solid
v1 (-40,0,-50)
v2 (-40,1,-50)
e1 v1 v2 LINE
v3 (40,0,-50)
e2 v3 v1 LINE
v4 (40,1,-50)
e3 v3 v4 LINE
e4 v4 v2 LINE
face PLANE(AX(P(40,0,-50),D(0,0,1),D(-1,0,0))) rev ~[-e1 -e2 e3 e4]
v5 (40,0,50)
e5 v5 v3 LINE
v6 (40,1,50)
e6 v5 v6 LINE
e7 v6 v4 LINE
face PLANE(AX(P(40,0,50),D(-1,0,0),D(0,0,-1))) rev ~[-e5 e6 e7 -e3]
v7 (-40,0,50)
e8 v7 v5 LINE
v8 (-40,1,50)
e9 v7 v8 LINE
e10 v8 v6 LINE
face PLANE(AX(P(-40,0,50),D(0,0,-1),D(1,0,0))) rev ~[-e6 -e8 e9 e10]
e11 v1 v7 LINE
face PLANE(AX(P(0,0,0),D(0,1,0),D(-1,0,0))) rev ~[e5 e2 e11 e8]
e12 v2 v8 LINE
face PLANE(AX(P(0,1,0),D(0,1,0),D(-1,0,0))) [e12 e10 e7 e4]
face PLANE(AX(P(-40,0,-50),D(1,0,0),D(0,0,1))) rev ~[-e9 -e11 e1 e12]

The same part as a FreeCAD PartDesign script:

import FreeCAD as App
import Part
import Sketcher

V = App.Vector


def add_polygon(sketch, points):
    """Adds a closed chain of lines whose ends are joined by coincident constraints."""
    first, n = sketch.GeometryCount, len(points)
    for a, b in zip(points, points[1:] + points[:1]):
        sketch.addGeometry(Part.LineSegment(App.Vector(*a, 0), App.Vector(*b, 0)), False)
    for i in range(n):
        sketch.addConstraint(Sketcher.Constraint("Coincident", first + i, 2, first + (i + 1) % n, 1))

doc = App.newDocument("Part")
body = doc.addObject("PartDesign::Body", "Body")

sketch1 = body.newObject("Sketcher::SketchObject", "Sketch")
sketch1.AttachmentSupport = (doc.getObject("XZ_Plane"), [""])
sketch1.MapMode = "FlatFace"
add_polygon(sketch1, [(-40, -50), (-40, 50), (40, 50), (40, -50)])
sketch1.addConstraint(Sketcher.Constraint("Vertical", 0))
sketch1.addConstraint(Sketcher.Constraint("Horizontal", 1))
sketch1.addConstraint(Sketcher.Constraint("Vertical", 2))
sketch1.addConstraint(Sketcher.Constraint("Horizontal", 3))
sketch1.addConstraint(Sketcher.Constraint("Symmetric", 0, 2, 2, 2, -1, 1))
sketch1.addConstraint(Sketcher.Constraint("DistanceX", 1, 1, 1, 2, 80.0))
sketch1.addConstraint(Sketcher.Constraint("DistanceY", 0, 1, 0, 2, 100.0))
pad1 = body.newObject("PartDesign::Pad", "Pad")
pad1.Profile = sketch1
pad1.Length = 1
pad1.Reversed = True

doc.recompute()
